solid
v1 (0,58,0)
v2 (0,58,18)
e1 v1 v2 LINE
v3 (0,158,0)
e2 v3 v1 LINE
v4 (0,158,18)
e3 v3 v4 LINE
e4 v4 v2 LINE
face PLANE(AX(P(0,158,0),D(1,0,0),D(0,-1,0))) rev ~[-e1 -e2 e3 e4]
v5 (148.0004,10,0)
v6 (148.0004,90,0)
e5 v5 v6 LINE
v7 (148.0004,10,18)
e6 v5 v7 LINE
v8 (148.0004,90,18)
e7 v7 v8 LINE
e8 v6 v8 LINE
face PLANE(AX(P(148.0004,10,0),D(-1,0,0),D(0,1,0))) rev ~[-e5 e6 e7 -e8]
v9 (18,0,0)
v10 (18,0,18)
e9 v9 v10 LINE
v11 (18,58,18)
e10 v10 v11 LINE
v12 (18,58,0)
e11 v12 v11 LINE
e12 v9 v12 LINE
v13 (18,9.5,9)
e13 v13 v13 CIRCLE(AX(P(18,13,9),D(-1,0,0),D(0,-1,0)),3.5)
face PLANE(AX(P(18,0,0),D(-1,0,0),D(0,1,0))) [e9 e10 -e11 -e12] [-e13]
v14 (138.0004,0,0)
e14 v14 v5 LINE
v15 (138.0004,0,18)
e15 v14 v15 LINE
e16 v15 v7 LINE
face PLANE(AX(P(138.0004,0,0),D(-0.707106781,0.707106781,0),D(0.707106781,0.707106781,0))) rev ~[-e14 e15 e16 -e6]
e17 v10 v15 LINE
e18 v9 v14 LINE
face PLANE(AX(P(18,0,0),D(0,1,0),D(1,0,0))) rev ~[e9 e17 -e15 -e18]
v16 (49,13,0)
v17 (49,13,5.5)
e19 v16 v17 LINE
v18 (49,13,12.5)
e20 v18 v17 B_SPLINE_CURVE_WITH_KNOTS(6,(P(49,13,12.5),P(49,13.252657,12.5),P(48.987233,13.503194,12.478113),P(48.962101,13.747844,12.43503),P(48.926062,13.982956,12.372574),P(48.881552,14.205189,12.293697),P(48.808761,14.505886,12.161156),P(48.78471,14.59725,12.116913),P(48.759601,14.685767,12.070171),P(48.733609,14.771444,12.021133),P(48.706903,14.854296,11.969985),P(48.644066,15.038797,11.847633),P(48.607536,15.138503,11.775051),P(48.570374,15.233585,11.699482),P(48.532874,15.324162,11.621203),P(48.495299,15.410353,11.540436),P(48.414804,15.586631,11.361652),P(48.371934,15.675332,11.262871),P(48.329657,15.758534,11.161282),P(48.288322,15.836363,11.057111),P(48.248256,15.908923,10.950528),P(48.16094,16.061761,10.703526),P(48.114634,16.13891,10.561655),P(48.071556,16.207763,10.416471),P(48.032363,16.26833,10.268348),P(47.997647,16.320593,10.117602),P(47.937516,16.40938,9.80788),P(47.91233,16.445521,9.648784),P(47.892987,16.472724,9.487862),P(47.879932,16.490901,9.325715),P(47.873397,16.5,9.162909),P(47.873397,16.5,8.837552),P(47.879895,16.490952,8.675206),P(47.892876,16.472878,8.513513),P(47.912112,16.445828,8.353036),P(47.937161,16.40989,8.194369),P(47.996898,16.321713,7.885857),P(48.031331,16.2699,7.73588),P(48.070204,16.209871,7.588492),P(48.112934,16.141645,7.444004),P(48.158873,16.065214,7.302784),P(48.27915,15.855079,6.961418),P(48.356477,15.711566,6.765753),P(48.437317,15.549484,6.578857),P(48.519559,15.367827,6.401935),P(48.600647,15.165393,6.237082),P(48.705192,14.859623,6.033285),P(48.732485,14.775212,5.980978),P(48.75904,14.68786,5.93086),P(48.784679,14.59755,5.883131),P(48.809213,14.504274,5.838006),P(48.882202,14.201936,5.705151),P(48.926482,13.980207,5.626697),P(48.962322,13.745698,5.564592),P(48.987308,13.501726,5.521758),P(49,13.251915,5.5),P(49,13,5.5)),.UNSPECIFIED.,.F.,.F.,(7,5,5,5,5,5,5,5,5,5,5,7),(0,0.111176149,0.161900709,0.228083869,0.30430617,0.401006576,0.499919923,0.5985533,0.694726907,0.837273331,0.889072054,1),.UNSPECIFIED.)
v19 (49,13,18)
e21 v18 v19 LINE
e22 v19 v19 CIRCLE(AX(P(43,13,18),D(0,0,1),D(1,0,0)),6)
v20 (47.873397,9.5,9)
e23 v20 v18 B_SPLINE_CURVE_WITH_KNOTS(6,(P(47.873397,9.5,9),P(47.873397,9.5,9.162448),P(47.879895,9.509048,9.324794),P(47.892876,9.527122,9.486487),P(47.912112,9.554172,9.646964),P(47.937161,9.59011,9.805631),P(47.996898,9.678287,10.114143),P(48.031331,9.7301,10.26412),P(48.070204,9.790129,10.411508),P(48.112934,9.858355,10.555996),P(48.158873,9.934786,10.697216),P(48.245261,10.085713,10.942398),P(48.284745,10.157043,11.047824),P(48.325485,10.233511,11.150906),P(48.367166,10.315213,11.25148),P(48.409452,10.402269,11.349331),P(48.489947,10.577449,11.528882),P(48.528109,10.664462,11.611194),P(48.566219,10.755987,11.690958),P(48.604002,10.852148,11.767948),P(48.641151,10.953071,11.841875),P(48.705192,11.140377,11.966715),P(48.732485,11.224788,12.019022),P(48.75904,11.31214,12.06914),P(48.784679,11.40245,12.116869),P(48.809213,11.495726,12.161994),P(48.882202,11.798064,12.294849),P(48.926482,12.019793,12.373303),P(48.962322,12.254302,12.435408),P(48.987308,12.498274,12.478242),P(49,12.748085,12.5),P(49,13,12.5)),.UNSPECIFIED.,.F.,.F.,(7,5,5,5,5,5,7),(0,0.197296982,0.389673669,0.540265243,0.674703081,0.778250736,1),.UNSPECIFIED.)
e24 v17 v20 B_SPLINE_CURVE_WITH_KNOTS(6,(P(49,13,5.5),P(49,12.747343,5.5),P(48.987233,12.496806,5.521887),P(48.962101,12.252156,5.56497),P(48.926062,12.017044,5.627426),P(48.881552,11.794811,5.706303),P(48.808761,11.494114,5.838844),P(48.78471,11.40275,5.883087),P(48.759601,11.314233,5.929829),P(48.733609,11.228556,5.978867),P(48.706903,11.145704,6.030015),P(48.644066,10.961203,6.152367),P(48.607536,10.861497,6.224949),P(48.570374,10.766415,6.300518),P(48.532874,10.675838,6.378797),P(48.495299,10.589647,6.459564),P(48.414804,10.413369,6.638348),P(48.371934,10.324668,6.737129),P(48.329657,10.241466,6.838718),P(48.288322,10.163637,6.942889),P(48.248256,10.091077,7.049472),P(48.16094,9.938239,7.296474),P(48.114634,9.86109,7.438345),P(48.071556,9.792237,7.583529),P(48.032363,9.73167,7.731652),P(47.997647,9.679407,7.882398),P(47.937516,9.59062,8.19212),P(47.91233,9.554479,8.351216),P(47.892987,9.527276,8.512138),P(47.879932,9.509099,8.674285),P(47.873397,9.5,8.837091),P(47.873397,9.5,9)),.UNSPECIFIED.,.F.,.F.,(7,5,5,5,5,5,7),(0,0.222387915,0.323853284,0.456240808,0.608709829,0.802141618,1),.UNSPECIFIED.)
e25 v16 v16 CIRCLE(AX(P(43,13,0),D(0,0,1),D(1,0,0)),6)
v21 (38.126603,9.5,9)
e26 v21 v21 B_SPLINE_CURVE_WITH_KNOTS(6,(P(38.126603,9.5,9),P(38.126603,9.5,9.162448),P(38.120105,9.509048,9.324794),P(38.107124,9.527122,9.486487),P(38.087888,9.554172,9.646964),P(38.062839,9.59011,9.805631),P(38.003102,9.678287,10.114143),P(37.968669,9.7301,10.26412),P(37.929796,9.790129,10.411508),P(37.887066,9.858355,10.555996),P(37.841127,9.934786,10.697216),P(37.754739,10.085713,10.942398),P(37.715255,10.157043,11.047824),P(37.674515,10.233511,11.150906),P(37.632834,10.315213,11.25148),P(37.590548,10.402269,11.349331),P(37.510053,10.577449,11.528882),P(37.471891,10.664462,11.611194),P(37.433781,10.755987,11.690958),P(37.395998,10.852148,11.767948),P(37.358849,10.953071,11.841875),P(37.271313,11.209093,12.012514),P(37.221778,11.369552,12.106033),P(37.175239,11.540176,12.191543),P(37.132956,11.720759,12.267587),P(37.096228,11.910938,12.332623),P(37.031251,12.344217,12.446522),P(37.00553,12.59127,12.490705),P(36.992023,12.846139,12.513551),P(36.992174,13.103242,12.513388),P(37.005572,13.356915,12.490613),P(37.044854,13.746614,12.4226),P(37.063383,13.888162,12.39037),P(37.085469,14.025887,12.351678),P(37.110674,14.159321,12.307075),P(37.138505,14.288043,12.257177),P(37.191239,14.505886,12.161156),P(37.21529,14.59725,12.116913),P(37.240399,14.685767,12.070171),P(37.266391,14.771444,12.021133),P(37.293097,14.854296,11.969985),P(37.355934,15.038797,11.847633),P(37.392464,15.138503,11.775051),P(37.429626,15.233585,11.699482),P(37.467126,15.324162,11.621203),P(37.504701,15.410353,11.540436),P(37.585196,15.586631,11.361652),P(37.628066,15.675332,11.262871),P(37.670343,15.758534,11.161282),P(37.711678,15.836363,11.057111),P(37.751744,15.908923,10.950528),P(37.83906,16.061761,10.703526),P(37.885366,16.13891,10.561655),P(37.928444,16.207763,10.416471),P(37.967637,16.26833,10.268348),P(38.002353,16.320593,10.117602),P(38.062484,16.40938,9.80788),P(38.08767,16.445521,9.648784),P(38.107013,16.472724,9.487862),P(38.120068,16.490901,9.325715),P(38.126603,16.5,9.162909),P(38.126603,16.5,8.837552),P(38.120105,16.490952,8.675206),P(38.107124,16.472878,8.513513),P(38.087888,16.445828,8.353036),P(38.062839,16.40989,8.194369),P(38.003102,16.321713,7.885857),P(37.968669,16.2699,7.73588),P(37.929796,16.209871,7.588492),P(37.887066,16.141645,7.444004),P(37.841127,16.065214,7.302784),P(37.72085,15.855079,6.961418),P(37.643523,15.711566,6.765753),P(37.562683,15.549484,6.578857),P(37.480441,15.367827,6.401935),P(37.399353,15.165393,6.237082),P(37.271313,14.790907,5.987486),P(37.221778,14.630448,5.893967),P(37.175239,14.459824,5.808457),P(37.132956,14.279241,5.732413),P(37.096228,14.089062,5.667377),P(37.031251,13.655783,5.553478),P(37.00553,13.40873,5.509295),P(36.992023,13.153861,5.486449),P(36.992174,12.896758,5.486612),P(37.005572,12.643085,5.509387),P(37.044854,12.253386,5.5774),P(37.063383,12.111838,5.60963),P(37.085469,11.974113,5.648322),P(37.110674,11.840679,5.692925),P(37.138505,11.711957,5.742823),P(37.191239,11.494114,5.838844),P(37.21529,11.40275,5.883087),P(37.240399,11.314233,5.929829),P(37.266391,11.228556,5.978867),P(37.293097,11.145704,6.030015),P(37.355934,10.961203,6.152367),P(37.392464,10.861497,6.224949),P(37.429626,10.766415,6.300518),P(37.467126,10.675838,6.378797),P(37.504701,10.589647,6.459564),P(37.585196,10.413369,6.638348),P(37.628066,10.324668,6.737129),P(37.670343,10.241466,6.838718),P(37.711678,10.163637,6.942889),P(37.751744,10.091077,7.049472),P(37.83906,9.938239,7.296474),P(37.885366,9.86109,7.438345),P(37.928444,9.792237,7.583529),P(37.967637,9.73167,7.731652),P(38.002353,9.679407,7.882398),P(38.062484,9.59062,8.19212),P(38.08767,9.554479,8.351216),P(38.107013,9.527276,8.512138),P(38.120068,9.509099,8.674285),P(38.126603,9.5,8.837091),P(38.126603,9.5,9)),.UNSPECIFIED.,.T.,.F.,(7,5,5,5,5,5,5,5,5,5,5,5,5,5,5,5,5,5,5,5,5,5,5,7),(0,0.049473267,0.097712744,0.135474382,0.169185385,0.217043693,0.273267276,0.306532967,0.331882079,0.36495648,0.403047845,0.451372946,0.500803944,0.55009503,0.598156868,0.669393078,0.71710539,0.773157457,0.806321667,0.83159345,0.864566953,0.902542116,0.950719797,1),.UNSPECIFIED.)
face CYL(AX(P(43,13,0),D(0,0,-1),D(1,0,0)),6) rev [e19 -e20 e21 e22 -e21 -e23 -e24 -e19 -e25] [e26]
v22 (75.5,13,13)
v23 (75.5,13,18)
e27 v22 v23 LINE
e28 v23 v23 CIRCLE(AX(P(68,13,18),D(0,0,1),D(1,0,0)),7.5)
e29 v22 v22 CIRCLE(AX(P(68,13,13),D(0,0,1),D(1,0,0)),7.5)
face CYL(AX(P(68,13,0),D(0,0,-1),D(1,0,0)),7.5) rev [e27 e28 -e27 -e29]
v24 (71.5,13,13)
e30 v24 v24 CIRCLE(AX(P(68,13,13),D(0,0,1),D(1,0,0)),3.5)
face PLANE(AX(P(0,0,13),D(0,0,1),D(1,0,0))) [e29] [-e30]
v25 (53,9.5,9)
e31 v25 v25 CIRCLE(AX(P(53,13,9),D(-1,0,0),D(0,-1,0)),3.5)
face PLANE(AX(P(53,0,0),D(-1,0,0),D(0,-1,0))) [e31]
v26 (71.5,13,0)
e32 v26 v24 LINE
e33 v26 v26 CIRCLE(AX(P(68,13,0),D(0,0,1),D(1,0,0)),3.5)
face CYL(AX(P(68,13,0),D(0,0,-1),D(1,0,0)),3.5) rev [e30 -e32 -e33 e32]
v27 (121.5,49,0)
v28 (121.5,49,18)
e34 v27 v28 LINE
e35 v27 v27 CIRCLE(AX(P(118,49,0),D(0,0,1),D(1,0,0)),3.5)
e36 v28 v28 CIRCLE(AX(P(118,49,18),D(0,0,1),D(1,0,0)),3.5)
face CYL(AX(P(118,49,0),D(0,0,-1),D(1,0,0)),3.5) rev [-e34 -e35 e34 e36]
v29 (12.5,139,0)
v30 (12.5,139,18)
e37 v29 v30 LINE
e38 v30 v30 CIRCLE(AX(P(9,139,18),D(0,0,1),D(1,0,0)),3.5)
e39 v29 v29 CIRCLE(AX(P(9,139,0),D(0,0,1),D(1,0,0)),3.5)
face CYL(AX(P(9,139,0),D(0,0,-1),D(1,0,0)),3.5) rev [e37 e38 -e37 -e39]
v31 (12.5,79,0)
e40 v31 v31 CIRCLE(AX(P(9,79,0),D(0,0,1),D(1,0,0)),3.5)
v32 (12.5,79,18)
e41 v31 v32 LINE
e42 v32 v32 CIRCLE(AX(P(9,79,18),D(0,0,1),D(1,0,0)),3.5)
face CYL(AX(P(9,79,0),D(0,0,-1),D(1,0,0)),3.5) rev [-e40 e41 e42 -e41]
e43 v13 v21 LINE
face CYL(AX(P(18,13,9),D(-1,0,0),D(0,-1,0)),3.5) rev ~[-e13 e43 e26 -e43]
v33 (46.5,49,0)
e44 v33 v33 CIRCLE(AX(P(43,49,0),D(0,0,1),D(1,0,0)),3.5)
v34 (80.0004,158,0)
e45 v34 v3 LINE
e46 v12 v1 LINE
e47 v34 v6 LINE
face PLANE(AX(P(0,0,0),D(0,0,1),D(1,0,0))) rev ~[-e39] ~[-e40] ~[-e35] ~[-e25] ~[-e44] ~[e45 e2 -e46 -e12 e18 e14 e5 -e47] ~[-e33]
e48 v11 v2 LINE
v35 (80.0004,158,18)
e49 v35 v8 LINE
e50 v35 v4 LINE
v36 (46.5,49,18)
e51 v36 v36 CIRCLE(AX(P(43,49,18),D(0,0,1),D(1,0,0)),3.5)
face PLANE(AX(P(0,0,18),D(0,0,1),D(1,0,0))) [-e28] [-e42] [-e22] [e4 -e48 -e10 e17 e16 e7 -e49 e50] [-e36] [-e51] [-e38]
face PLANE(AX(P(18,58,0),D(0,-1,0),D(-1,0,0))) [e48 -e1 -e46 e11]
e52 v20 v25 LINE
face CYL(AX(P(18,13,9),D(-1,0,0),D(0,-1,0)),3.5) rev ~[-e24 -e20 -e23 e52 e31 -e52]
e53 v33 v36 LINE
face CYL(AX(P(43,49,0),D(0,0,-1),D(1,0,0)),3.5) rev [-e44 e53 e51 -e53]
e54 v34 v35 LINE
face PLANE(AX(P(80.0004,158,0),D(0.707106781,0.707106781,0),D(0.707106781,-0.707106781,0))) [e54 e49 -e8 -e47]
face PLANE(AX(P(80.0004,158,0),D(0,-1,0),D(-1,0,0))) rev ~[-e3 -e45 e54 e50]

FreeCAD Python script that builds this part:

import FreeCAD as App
import Part
import Sketcher
from FreeCAD import Vector
Q = App.Units.Quantity


def add_polygon(sketch, points):
    """Adds a closed chain of lines whose ends are joined by coincident constraints."""
    first, n = sketch.GeometryCount, len(points)
    for a, b in zip(points, points[1:] + points[:1]):
        sketch.addGeometry(Part.LineSegment(App.Vector(*a, 0), App.Vector(*b, 0)), False)
    for i in range(n):
        sketch.addConstraint(Sketcher.Constraint("Coincident", first + i, 2, first + (i + 1) % n, 1))

doc = App.newDocument("Part")
params = doc.addObject("Spreadsheet::Sheet", "Params")
for row, (alias, value) in enumerate([
    ("sketch1_diameter", "15 mm"),
    ("sketch1_diameter2", "7 mm"),
    ("pad1_length", "13 mm"),
    ("sketch2_diameter", "12 mm"),
    ("sketch2_diameter2", "15 mm"),
    ("sketch2_diameter3", "7 mm"),
    ("sketch2_width", "18 mm"),
    ("sketch2_height", "58 mm"),
    ("pad2_length", "18 mm"),
    ("sketch3_diameter", "7 mm"),
    ("pocket1_length", "35 mm"),
], start=1):
    params.set(f"A{row}", alias)
    params.set(f"B{row}", "=" + value)
    params.setAlias(f"B{row}", alias)

body = doc.addObject("PartDesign::Body", "Body")

sketch1 = doc.addObject("Sketcher::SketchObject", "Sketch")
body.addObject(sketch1)
sketch1.AttachmentSupport = (doc.XY_Plane, [""])
sketch1.MapMode = "FlatFace"
sketch1.addGeometry(Part.Circle(Vector(68, 13, 0), Vector(0, 0, 1), 7.5), False)
sketch1.addGeometry(Part.Circle(Vector(68, 13, 0), Vector(0, 0, 1), 3.5), False)
sketch1.addConstraint(Sketcher.Constraint("Coincident", 1, 3, 0, 3))
sketch1.addConstraint(Sketcher.Constraint("Diameter", 0, Q("15 mm")))
sketch1.addConstraint(Sketcher.Constraint("Diameter", 1, Q("7 mm")))
sketch1.addConstraint(Sketcher.Constraint("DistanceX", -1, 1, 0, 3, Q("68 mm")))
sketch1.addConstraint(Sketcher.Constraint("DistanceY", -1, 1, 0, 3, Q("13 mm")))
sketch1.setExpression("Constraints[1]", "Params.sketch1_diameter")
sketch1.setExpression("Constraints[2]", "Params.sketch1_diameter2")
pad1 = doc.addObject("PartDesign::Pad", "Pad")
body.addObject(pad1)
pad1.Profile = sketch1
pad1.setExpression("Length", "Params.pad1_length")

sketch2 = doc.addObject("Sketcher::SketchObject", "Sketch001")
body.addObject(sketch2)
sketch2.AttachmentSupport = (doc.XY_Plane, [""])
sketch2.MapMode = "FlatFace"
add_polygon(sketch2, [(18, 58), (18, 0), (138.0004, 0), (148.0004, 10), (148.0004, 90), (80.0004, 158), (0, 158), (0, 58)])
sketch2.addGeometry(Part.Circle(Vector(43, 13, 0), Vector(0, 0, 1), 6), False)
sketch2.addGeometry(Part.Circle(Vector(68, 13, 0), Vector(0, 0, 1), 7.5), False)
sketch2.addGeometry(Part.Circle(Vector(43, 49, 0), Vector(0, 0, 1), 3.5), False)
sketch2.addGeometry(Part.Circle(Vector(118, 49, 0), Vector(0, 0, 1), 3.5), False)
sketch2.addGeometry(Part.Circle(Vector(9, 79, 0), Vector(0, 0, 1), 3.5), False)
sketch2.addGeometry(Part.Circle(Vector(9, 139, 0), Vector(0, 0, 1), 3.5), False)
sketch2.addConstraint(Sketcher.Constraint("Vertical", 0))
sketch2.addConstraint(Sketcher.Constraint("Horizontal", 1))
sketch2.addConstraint(Sketcher.Constraint("Vertical", 3))
sketch2.addConstraint(Sketcher.Constraint("Horizontal", 5))
sketch2.addConstraint(Sketcher.Constraint("Vertical", 6))
sketch2.addConstraint(Sketcher.Constraint("Horizontal", 7))
sketch2.addConstraint(Sketcher.Constraint("Equal", 10, 11))
sketch2.addConstraint(Sketcher.Constraint("Equal", 11, 12))
sketch2.addConstraint(Sketcher.Constraint("Equal", 12, 13))
sketch2.addConstraint(Sketcher.Constraint("PointOnObject", 0, 2, -1))
sketch2.addConstraint(Sketcher.Constraint("PointOnObject", 5, 2, -2))
sketch2.addConstraint(Sketcher.Constraint("Perpendicular", 2, 4))
sketch2.addConstraint(Sketcher.Constraint("Horizontal", 8, 3, 9, 3))
sketch2.addConstraint(Sketcher.Constraint("Horizontal", 10, 3, 11, 3))
sketch2.addConstraint(Sketcher.Constraint("Vertical", 8, 3, 10, 3))
sketch2.addConstraint(Sketcher.Constraint("Vertical", 12, 3, 13, 3))
sketch2.addConstraint(Sketcher.Constraint("Diameter", 8, Q("12 mm")))
sketch2.addConstraint(Sketcher.Constraint("Diameter", 9, Q("15 mm")))
sketch2.addConstraint(Sketcher.Constraint("Diameter", 10, Q("7 mm")))
sketch2.addConstraint(Sketcher.Constraint("DistanceX", 7, 1, 7, 2, Q("18 mm")))
sketch2.addConstraint(Sketcher.Constraint("DistanceY", 0, 2, 0, 1, Q("58 mm")))
sketch2.addConstraint(Sketcher.Constraint("DistanceY", -1, 1, 8, 3, Q("13 mm")))
sketch2.addConstraint(Sketcher.Constraint("DistanceX", -1, 1, 9, 3, Q("68 mm")))
sketch2.addConstraint(Sketcher.Constraint("DistanceY", -1, 1, 10, 3, Q("49 mm")))
sketch2.addConstraint(Sketcher.Constraint("DistanceX", -1, 1, 12, 3, Q("9 mm")))
sketch2.addConstraint(Sketcher.Constraint("DistanceY", -1, 1, 2, 2, Q("10 mm")))
sketch2.addConstraint(Sketcher.Constraint("DistanceY", -1, 1, 4, 2, Q("158 mm")))
sketch2.addConstraint(Sketcher.Constraint("DistanceX", 8, 3, 9, 3, Q("25 mm")))
sketch2.addConstraint(Sketcher.Constraint("DistanceX", 10, 3, 11, 3, Q("75 mm")))
sketch2.addConstraint(Sketcher.Constraint("DistanceY", 12, 3, 13, 3, Q("60 mm")))
sketch2.addConstraint(Sketcher.Constraint("DistanceX", 1, 2, 2, 2, Q("10 mm")))
sketch2.addConstraint(Sketcher.Constraint("DistanceX", 4, 2, 3, 2, Q("68 mm")))
sketch2.addConstraint(Sketcher.Constraint("DistanceY", 6, 2, 12, 3, Q("21 mm")))
sketch2.addConstraint(Sketcher.Constraint("DistanceX", 1, 1, 1, 2, Q("120.0004 mm")))
sketch2.setExpression("Constraints[24]", "Params.sketch2_diameter")
sketch2.setExpression("Constraints[25]", "Params.sketch2_diameter2")
sketch2.setExpression("Constraints[26]", "Params.sketch2_diameter3")
sketch2.setExpression("Constraints[27]", "Params.sketch2_width")
sketch2.setExpression("Constraints[28]", "Params.sketch2_height")
pad2 = doc.addObject("PartDesign::Pad", "Pad001")
body.addObject(pad2)
pad2.Profile = sketch2
pad2.setExpression("Length", "Params.pad2_length")

sketch3 = doc.addObject("Sketcher::SketchObject", "Sketch002")
body.addObject(sketch3)
sketch3.AttachmentSupport = (doc.YZ_Plane, [""])
sketch3.MapMode = "FlatFace"
sketch3.AttachmentOffset = App.Placement(Vector(0, 0, 18), App.Rotation())
sketch3.addGeometry(Part.Circle(Vector(13, 9, 0), Vector(0, 0, 1), 3.5), False)
sketch3.addConstraint(Sketcher.Constraint("Diameter", 0, Q("7 mm")))
sketch3.addConstraint(Sketcher.Constraint("DistanceX", -1, 1, 0, 3, Q("13 mm")))
sketch3.addConstraint(Sketcher.Constraint("DistanceY", -1, 1, 0, 3, Q("9 mm")))
sketch3.setExpression("Constraints[0]", "Params.sketch3_diameter")
pocket1 = doc.addObject("PartDesign::Pocket", "Pocket")
body.addObject(pocket1)
pocket1.Profile = sketch3
pocket1.setExpression("Length", "Params.pocket1_length")
pocket1.Reversed = True

doc.recompute()
